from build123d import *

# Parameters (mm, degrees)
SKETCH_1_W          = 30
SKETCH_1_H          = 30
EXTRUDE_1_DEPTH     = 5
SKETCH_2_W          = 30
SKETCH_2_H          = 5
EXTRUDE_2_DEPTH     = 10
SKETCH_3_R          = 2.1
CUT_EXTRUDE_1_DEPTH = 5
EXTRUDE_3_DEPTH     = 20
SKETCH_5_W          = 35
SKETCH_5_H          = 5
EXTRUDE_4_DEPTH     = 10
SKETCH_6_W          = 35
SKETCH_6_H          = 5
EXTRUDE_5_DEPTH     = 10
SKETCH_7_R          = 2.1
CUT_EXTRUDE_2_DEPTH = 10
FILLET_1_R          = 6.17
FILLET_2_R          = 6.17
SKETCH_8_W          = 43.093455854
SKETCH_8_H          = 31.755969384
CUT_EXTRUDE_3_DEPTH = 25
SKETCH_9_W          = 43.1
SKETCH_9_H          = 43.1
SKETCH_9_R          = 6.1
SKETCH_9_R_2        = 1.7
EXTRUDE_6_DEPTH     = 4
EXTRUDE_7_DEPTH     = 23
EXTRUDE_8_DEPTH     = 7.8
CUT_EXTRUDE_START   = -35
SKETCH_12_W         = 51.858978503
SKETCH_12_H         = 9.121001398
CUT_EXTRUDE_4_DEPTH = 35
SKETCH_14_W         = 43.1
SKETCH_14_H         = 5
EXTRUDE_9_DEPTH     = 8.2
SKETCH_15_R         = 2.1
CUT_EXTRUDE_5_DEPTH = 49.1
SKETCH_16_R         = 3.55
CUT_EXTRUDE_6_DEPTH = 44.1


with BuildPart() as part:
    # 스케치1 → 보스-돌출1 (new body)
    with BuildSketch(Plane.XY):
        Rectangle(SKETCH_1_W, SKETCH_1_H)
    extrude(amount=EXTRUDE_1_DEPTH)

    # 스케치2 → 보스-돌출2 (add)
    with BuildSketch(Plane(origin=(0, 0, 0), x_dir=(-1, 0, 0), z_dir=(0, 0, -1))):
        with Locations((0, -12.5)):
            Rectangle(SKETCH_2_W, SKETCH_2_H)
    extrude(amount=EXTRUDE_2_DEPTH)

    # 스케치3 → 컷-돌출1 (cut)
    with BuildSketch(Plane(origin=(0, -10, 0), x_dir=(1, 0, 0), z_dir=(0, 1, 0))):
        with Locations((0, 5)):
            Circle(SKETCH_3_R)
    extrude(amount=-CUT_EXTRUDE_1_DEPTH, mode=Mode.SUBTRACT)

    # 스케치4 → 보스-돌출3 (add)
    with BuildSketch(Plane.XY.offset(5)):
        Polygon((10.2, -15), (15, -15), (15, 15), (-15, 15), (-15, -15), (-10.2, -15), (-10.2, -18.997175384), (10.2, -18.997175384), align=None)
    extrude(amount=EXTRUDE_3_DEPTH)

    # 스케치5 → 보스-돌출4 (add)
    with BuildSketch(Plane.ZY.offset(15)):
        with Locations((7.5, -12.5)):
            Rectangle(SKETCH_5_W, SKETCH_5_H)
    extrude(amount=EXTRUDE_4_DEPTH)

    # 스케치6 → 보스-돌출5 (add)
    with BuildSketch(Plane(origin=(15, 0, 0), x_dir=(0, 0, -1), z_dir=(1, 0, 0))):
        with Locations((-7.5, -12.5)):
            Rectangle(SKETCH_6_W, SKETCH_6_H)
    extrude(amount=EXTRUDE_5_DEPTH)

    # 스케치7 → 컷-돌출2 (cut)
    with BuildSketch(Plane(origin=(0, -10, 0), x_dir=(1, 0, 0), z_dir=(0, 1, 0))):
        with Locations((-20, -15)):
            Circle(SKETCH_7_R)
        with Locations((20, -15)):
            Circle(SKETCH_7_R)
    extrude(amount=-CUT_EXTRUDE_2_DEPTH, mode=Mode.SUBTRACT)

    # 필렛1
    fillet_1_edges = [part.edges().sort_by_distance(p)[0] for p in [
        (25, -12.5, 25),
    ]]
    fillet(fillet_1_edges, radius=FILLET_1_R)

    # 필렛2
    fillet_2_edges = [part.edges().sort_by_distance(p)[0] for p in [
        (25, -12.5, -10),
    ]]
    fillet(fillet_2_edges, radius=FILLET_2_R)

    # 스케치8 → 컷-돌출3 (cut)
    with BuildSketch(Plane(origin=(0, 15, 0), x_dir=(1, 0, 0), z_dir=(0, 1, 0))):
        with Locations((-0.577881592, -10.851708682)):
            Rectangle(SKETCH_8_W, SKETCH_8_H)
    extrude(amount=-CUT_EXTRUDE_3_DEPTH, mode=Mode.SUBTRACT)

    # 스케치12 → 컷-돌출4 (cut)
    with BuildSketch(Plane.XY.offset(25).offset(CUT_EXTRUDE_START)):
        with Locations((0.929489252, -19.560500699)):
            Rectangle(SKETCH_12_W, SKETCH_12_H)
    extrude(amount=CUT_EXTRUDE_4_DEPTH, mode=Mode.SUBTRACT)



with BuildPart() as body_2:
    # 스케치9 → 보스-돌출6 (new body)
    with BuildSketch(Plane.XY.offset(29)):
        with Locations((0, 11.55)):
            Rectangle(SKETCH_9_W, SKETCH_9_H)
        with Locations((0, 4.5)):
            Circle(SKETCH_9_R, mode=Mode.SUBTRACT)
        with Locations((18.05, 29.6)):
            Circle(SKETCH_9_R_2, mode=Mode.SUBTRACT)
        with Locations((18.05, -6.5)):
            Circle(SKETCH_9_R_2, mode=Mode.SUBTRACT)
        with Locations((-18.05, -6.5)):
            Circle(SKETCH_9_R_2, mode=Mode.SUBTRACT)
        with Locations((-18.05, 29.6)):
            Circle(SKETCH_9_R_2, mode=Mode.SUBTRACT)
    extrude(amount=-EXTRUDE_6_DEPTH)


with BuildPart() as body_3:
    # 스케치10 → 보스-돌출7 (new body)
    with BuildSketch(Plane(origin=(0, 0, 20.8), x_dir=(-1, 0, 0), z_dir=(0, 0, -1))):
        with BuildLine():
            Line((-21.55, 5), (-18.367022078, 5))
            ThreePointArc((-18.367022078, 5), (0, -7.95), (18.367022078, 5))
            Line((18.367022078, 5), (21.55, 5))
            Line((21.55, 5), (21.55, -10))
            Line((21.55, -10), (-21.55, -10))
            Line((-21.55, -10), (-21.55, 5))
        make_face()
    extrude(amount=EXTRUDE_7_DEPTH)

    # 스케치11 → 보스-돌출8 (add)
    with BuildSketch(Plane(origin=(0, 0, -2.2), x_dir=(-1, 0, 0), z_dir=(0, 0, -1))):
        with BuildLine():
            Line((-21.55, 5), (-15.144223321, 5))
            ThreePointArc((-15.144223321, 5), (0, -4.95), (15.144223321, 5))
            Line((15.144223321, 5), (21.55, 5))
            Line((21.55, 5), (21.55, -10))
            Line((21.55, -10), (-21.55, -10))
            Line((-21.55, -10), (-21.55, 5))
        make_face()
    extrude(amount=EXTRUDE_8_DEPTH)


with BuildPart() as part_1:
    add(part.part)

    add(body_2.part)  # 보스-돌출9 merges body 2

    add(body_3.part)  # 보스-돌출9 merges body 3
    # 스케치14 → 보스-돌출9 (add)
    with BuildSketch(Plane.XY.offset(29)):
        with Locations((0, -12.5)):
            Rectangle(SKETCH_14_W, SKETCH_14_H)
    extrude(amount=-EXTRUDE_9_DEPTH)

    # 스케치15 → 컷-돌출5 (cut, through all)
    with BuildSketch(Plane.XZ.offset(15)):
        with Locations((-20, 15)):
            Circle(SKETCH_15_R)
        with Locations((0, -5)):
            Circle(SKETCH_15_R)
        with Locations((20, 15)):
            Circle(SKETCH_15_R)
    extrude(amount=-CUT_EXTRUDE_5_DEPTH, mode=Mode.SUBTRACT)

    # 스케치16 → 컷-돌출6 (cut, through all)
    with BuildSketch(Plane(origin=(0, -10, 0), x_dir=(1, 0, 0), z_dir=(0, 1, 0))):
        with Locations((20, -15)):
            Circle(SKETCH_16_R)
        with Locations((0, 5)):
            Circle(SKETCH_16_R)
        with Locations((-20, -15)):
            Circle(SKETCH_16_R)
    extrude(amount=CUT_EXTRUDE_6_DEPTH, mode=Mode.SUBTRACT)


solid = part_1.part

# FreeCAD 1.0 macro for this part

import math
import FreeCAD as App
import Part
import Sketcher


def edges_at(feature, points):
    """Names of the edges that pass closest to the given points."""
    edges = feature.Shape.Edges
    near = lambda p: min(range(len(edges)), key=lambda i: edges[i].distToShape(Part.Vertex(*p))[0])
    return sorted({f"Edge{near(p) + 1}" for p in points})


def add_polygon(sketch, points):
    """Adds a closed chain of lines whose ends are joined by coincident constraints."""
    first, n = sketch.GeometryCount, len(points)
    for a, b in zip(points, points[1:] + points[:1]):
        sketch.addGeometry(Part.LineSegment(App.Vector(*a, 0), App.Vector(*b, 0)), False)
    for i in range(n):
        sketch.addConstraint(Sketcher.Constraint("Coincident", first + i, 2, first + (i + 1) % n, 1))

doc = App.newDocument("Part")
body = doc.addObject("PartDesign::Body", "Body")

# Sketch on XY plane
sketch1 = body.newObject("Sketcher::SketchObject", "Sketch")
sketch1.AttachmentSupport = (doc.getObject("XY_Plane"), [""])
sketch1.MapMode = "FlatFace"
add_polygon(sketch1, [(-15, 15), (-15, -15), (15, -15), (15, 15)])  # lines 0-3
sketch1.addConstraint(Sketcher.Constraint("Vertical", 0))
sketch1.addConstraint(Sketcher.Constraint("Horizontal", 1))
sketch1.addConstraint(Sketcher.Constraint("Vertical", 2))
sketch1.addConstraint(Sketcher.Constraint("Horizontal", 3))
sketch1.addConstraint(Sketcher.Constraint("Symmetric", 0, 2, 2, 2, -1, 1))
sketch1.addConstraint(Sketcher.Constraint("Equal", 3, 0))
sketch1.addConstraint(Sketcher.Constraint("DistanceX", 1, 1, 1, 2, 30.0))
pad1 = body.newObject("PartDesign::Pad", "Pad")
pad1.Profile = sketch1
pad1.Length = 5

# Sketch on XY plane
sketch2 = body.newObject("Sketcher::SketchObject", "Sketch001")
sketch2.AttachmentSupport = (doc.getObject("XY_Plane"), [""])
sketch2.MapMode = "FlatFace"
add_polygon(sketch2, [(15, -10), (15, -15), (-15, -15), (-15, -10)])  # lines 0-3
sketch2.addConstraint(Sketcher.Constraint("Vertical", 0))
sketch2.addConstraint(Sketcher.Constraint("Horizontal", 1))
sketch2.addConstraint(Sketcher.Constraint("Vertical", 2))
sketch2.addConstraint(Sketcher.Constraint("Horizontal", 3))
sketch2.addConstraint(Sketcher.Constraint("DistanceX", 1, 2, 1, 1, 30.0))
sketch2.addConstraint(Sketcher.Constraint("DistanceY", 0, 2, 0, 1, 5.0))
sketch2.addConstraint(Sketcher.Constraint("DistanceX", -1, 1, 0, 2, 15.0))
sketch2.addConstraint(Sketcher.Constraint("DistanceY", 0, 2, -1, 1, 15.0))
pad2 = body.newObject("PartDesign::Pad", "Pad001")
pad2.Profile = sketch2
pad2.Length = 10
pad2.Reversed = True

# Sketch on XZ plane
sketch3 = body.newObject("Sketcher::SketchObject", "Sketch002")
sketch3.AttachmentSupport = (doc.getObject("XZ_Plane"), [""])
sketch3.MapMode = "FlatFace"
sketch3.AttachmentOffset = App.Placement(App.Vector(0, 0, 10), App.Rotation())
sketch3.addGeometry(Part.Circle(App.Vector(0, -5, 0), App.Vector(0, 0, 1), 2.1), False)
sketch3.addConstraint(Sketcher.Constraint("PointOnObject", 0, 3, -2))
sketch3.addConstraint(Sketcher.Constraint("Diameter", 0, 4.2))
sketch3.addConstraint(Sketcher.Constraint("DistanceY", 0, 3, -1, 1, 5.0))
pocket1 = body.newObject("PartDesign::Pocket", "Pocket")
pocket1.Profile = sketch3
pocket1.Length = 5
pocket1.Reversed = True

# Sketch on XY plane
sketch4 = body.newObject("Sketcher::SketchObject", "Sketch003")
sketch4.AttachmentSupport = (doc.getObject("XY_Plane"), [""])
sketch4.MapMode = "FlatFace"
sketch4.AttachmentOffset = App.Placement(App.Vector(0, 0, 5), App.Rotation())
add_polygon(sketch4, [(10.2, -15), (15, -15), (15, 15), (-15, 15), (-15, -15), (-10.2, -15), (-10.2, -19), (10.2, -19)])  # lines 0-7
sketch4.addConstraint(Sketcher.Constraint("Horizontal", 0))
sketch4.addConstraint(Sketcher.Constraint("Vertical", 1))
sketch4.addConstraint(Sketcher.Constraint("Horizontal", 2))
sketch4.addConstraint(Sketcher.Constraint("Vertical", 3))
sketch4.addConstraint(Sketcher.Constraint("Horizontal", 4))
sketch4.addConstraint(Sketcher.Constraint("Vertical", 5))
sketch4.addConstraint(Sketcher.Constraint("Horizontal", 6))
sketch4.addConstraint(Sketcher.Constraint("Vertical", 7))
sketch4.addConstraint(Sketcher.Constraint("Symmetric", 0, 2, 2, 2, -1, 1))
sketch4.addConstraint(Sketcher.Constraint("Symmetric", 4, 2, 7, 2, -2))
sketch4.addConstraint(Sketcher.Constraint("Equal", 2, 1))
sketch4.addConstraint(Sketcher.Constraint("DistanceX", 2, 2, 2, 1, 30.0))
sketch4.addConstraint(Sketcher.Constraint("DistanceX", 0, 1, 0, 2, 4.8))
sketch4.addConstraint(Sketcher.Constraint("DistanceY", 5, 2, 5, 1, 3.997175))
pad3 = body.newObject("PartDesign::Pad", "Pad002")
pad3.Profile = sketch4
pad3.Length = 20

# Sketch on YZ plane
sketch5 = body.newObject("Sketcher::SketchObject", "Sketch004")
sketch5.AttachmentSupport = (doc.getObject("YZ_Plane"), [""])
sketch5.MapMode = "FlatFace"
sketch5.AttachmentOffset = App.Placement(App.Vector(0, 0, -15), App.Rotation())
add_polygon(sketch5, [(-10, -10), (-15, -10), (-15, 25), (-10, 25)])  # lines 0-3
sketch5.addConstraint(Sketcher.Constraint("Horizontal", 0))
sketch5.addConstraint(Sketcher.Constraint("Vertical", 1))
sketch5.addConstraint(Sketcher.Constraint("Horizontal", 2))
sketch5.addConstraint(Sketcher.Constraint("Vertical", 3))
sketch5.addConstraint(Sketcher.Constraint("DistanceX", 0, 2, 0, 1, 5.0))
sketch5.addConstraint(Sketcher.Constraint("DistanceY", 1, 1, 1, 2, 35.0))
sketch5.addConstraint(Sketcher.Constraint("DistanceX", 0, 2, -1, 1, 15.0))
sketch5.addConstraint(Sketcher.Constraint("DistanceY", 0, 2, -1, 1, 10.0))
pad4 = body.newObject("PartDesign::Pad", "Pad003")
pad4.Profile = sketch5
pad4.Length = 10
pad4.Reversed = True

# Sketch on YZ plane
sketch6 = body.newObject("Sketcher::SketchObject", "Sketch005")
sketch6.AttachmentSupport = (doc.getObject("YZ_Plane"), [""])
sketch6.MapMode = "FlatFace"
sketch6.AttachmentOffset = App.Placement(App.Vector(0, 0, 15), App.Rotation())
add_polygon(sketch6, [(-10, 25), (-15, 25), (-15, -10), (-10, -10)])  # lines 0-3
sketch6.addConstraint(Sketcher.Constraint("Horizontal", 0))
sketch6.addConstraint(Sketcher.Constraint("Vertical", 1))
sketch6.addConstraint(Sketcher.Constraint("Horizontal", 2))
sketch6.addConstraint(Sketcher.Constraint("Vertical", 3))
sketch6.addConstraint(Sketcher.Constraint("DistanceX", 0, 2, 0, 1, 5.0))
sketch6.addConstraint(Sketcher.Constraint("DistanceY", 1, 2, 1, 1, 35.0))
sketch6.addConstraint(Sketcher.Constraint("DistanceX", 0, 2, -1, 1, 15.0))
sketch6.addConstraint(Sketcher.Constraint("DistanceY", -1, 1, 0, 2, 25.0))
pad5 = body.newObject("PartDesign::Pad", "Pad004")
pad5.Profile = sketch6
pad5.Length = 10

# Sketch on XZ plane
sketch7 = body.newObject("Sketcher::SketchObject", "Sketch006")
sketch7.AttachmentSupport = (doc.getObject("XZ_Plane"), [""])
sketch7.MapMode = "FlatFace"
sketch7.AttachmentOffset = App.Placement(App.Vector(0, 0, 10), App.Rotation())
sketch7.addGeometry(Part.Circle(App.Vector(-20, 15, 0), App.Vector(0, 0, 1), 2.1), False)
sketch7.addGeometry(Part.Circle(App.Vector(20, 15, 0), App.Vector(0, 0, 1), 2.1), False)
sketch7.addConstraint(Sketcher.Constraint("Equal", 0, 1))
sketch7.addConstraint(Sketcher.Constraint("Symmetric", 0, 3, 1, 3, -2))
sketch7.addConstraint(Sketcher.Constraint("Diameter", 0, 4.2))
sketch7.addConstraint(Sketcher.Constraint("DistanceX", 0, 3, -1, 1, 20.0))
sketch7.addConstraint(Sketcher.Constraint("DistanceY", -1, 1, 0, 3, 15.0))
pocket2 = body.newObject("PartDesign::Pocket", "Pocket001")
pocket2.Profile = sketch7
pocket2.Length = 10
pocket2.Reversed = True
doc.recompute()

fillet = body.newObject("PartDesign::Fillet", "Fillet")
fillet.Base = (pocket2, edges_at(pocket2, [(25, -12.5, 25)]))
fillet.Radius = 6.17
doc.recompute()

fillet2 = body.newObject("PartDesign::Fillet", "Fillet001")
fillet2.Base = (fillet, edges_at(fillet, [(25, -12.5, -10)]))
fillet2.Radius = 6.17

# Sketch on XZ plane
sketch8 = body.newObject("Sketcher::SketchObject", "Sketch007")
sketch8.AttachmentSupport = (doc.getObject("XZ_Plane"), [""])
sketch8.MapMode = "FlatFace"
sketch8.AttachmentOffset = App.Placement(App.Vector(0, 0, -15), App.Rotation())
add_polygon(sketch8, [(-22, -5), (-22, 27), (21, 27), (21, -5)])  # lines 0-3
sketch8.addConstraint(Sketcher.Constraint("Vertical", 0))
sketch8.addConstraint(Sketcher.Constraint("Horizontal", 1))
sketch8.addConstraint(Sketcher.Constraint("Vertical", 2))
sketch8.addConstraint(Sketcher.Constraint("Horizontal", 3))
sketch8.addConstraint(Sketcher.Constraint("DistanceY", 0, 1, 0, 2, 31.755969))
sketch8.addConstraint(Sketcher.Constraint("DistanceX", 1, 1, 1, 2, 43.093456))
sketch8.addConstraint(Sketcher.Constraint("DistanceX", 0, 2, -1, 1, 22.12461))
sketch8.addConstraint(Sketcher.Constraint("DistanceY", -1, 1, 0, 2, 26.729693))
pocket3 = body.newObject("PartDesign::Pocket", "Pocket002")
pocket3.Profile = sketch8
pocket3.Length = 25
pocket3.Reversed = True

# Sketch on XY plane
sketch9 = body.newObject("Sketcher::SketchObject", "Sketch008")
sketch9.AttachmentSupport = (doc.getObject("XY_Plane"), [""])
sketch9.MapMode = "FlatFace"
sketch9.AttachmentOffset = App.Placement(App.Vector(0, 0, -10), App.Rotation())
add_polygon(sketch9, [(-25, -15), (-25, -24), (27, -24), (27, -15)])  # lines 0-3
sketch9.addConstraint(Sketcher.Constraint("Vertical", 0))
sketch9.addConstraint(Sketcher.Constraint("Horizontal", 1))
sketch9.addConstraint(Sketcher.Constraint("Vertical", 2))
sketch9.addConstraint(Sketcher.Constraint("Horizontal", 3))
sketch9.addConstraint(Sketcher.Constraint("DistanceX", 0, 2, -1, 1, 25.0))
sketch9.addConstraint(Sketcher.Constraint("DistanceY", 2, 2, -1, 1, 15.0))
sketch9.addConstraint(Sketcher.Constraint("DistanceY", 0, 2, 0, 1, 9.121001))
sketch9.addConstraint(Sketcher.Constraint("DistanceX", 1, 1, 1, 2, 51.858979))
pocket4 = body.newObject("PartDesign::Pocket", "Pocket003")
pocket4.Profile = sketch9
pocket4.Length = 35
pocket4.Reversed = True
body2 = doc.addObject("PartDesign::Body", "Body001")

# Sketch on XY plane
sketch10 = body2.newObject("Sketcher::SketchObject", "Sketch009")
sketch10.AttachmentSupport = (doc.getObject("XY_Plane001"), [""])
sketch10.MapMode = "FlatFace"
sketch10.AttachmentOffset = App.Placement(App.Vector(0, 0, 29), App.Rotation())
add_polygon(sketch10, [(-21.6, 33.1), (-21.6, -10), (21.6, -10), (21.6, 33.1)])  # lines 0-3
sketch10.addGeometry(Part.Circle(App.Vector(-18.1, -6.5, 0), App.Vector(0, 0, 1), 1.7), False)  # 4
sketch10.addGeometry(Part.Circle(App.Vector(18.1, -6.5, 0), App.Vector(0, 0, 1), 1.7), False)  # 5
sketch10.addGeometry(Part.Circle(App.Vector(0, 4.5, 0), App.Vector(0, 0, 1), 6.1), False)  # 6
sketch10.addGeometry(Part.Circle(App.Vector(-18.1, 29.6, 0), App.Vector(0, 0, 1), 1.7), False)  # 7
sketch10.addGeometry(Part.Circle(App.Vector(18.1, 29.6, 0), App.Vector(0, 0, 1), 1.7), False)  # 8
sketch10.addConstraint(Sketcher.Constraint("Vertical", 0))
sketch10.addConstraint(Sketcher.Constraint("Horizontal", 1))
sketch10.addConstraint(Sketcher.Constraint("Vertical", 2))
sketch10.addConstraint(Sketcher.Constraint("Horizontal", 3))
sketch10.addConstraint(Sketcher.Constraint("Equal", 4, 5))
sketch10.addConstraint(Sketcher.Constraint("Equal", 5, 7))
sketch10.addConstraint(Sketcher.Constraint("Equal", 7, 8))
sketch10.addConstraint(Sketcher.Constraint("Symmetric", 4, 3, 5, 3, -2))
sketch10.addConstraint(Sketcher.Constraint("Symmetric", 7, 3, 8, 3, -2))
sketch10.addConstraint(Sketcher.Constraint("PointOnObject", 6, 3, -2))
sketch10.addConstraint(Sketcher.Constraint("Vertical", 4, 3, 7, 3))
sketch10.addConstraint(Sketcher.Constraint("Equal", 3, 0))
sketch10.addConstraint(Sketcher.Constraint("Diameter", 4, 3.4))
sketch10.addConstraint(Sketcher.Constraint("Diameter", 6, 12.2))
sketch10.addConstraint(Sketcher.Constraint("DistanceX", 1, 1, 1, 2, 43.1))
sketch10.addConstraint(Sketcher.Constraint("DistanceY", 0, 2, -1, 1, 10.0))
sketch10.addConstraint(Sketcher.Constraint("DistanceY", 4, 3, 6, 3, 11.0))
sketch10.addConstraint(Sketcher.Constraint("DistanceY", 4, 3, -1, 1, 6.5))
sketch10.addConstraint(Sketcher.Constraint("DistanceY", -1, 1, 7, 3, 29.6))
sketch10.addConstraint(Sketcher.Constraint("DistanceX", 4, 3, 5, 3, 36.1))
sketch10.addConstraint(Sketcher.Constraint("DistanceX", 0, 2, 4, 3, 3.5))
pad6 = body2.newObject("PartDesign::Pad", "Pad005")
pad6.Profile = sketch10
pad6.Length = 4
pad6.Reversed = True
body3 = doc.addObject("PartDesign::Body", "Body002")

# Sketch on XY plane
sketch11 = body3.newObject("Sketcher::SketchObject", "Sketch010")
sketch11.AttachmentSupport = (doc.getObject("XY_Plane002"), [""])
sketch11.MapMode = "FlatFace"
sketch11.AttachmentOffset = App.Placement(App.Vector(0, 0, 20.8), App.Rotation())
sketch11.addGeometry(Part.LineSegment(App.Vector(18.4, 5, 0), App.Vector(21.6, 5, 0)), False)
sketch11.addGeometry(Part.LineSegment(App.Vector(21.6, 5, 0), App.Vector(21.6, -10, 0)), False)
sketch11.addGeometry(Part.LineSegment(App.Vector(21.6, -10, 0), App.Vector(-21.6, -10, 0)), False)
sketch11.addGeometry(Part.LineSegment(App.Vector(-21.6, -10, 0), App.Vector(-21.6, 5, 0)), False)
sketch11.addGeometry(Part.LineSegment(App.Vector(-21.6, 5, 0), App.Vector(-18.4, 5, 0)), False)
sketch11.addGeometry(Part.ArcOfCircle(Part.Circle(App.Vector(0, 11.6, 0), App.Vector(0, 0, 1), 19.5), math.radians(-160), math.radians(-20)), False)
sketch11.addConstraint(Sketcher.Constraint("Coincident", 0, 2, 1, 1))
sketch11.addConstraint(Sketcher.Constraint("Coincident", 1, 2, 2, 1))
sketch11.addConstraint(Sketcher.Constraint("Coincident", 2, 2, 3, 1))
sketch11.addConstraint(Sketcher.Constraint("Coincident", 3, 2, 4, 1))
sketch11.addConstraint(Sketcher.Constraint("Coincident", 4, 2, 5, 1))
sketch11.addConstraint(Sketcher.Constraint("Coincident", 5, 2, 0, 1))
sketch11.addConstraint(Sketcher.Constraint("Horizontal", 0))
sketch11.addConstraint(Sketcher.Constraint("Vertical", 1))
sketch11.addConstraint(Sketcher.Constraint("Horizontal", 2))
sketch11.addConstraint(Sketcher.Constraint("Vertical", 3))
sketch11.addConstraint(Sketcher.Constraint("Horizontal", 4))
sketch11.addConstraint(Sketcher.Constraint("Symmetric", 0, 2, 3, 2, -2))
sketch11.addConstraint(Sketcher.Constraint("PointOnObject", 5, 3, -2))
sketch11.addConstraint(Sketcher.Constraint("Radius", 5, 19.5))
sketch11.addConstraint(Sketcher.Constraint("DistanceY", 1, 2, 1, 1, 15.0))
sketch11.addConstraint(Sketcher.Constraint("DistanceX", 2, 2, 2, 1, 43.1))
sketch11.addConstraint(Sketcher.Constraint("DistanceY", -1, 1, 0, 2, 5.0))
sketch11.addConstraint(Sketcher.Constraint("DistanceY", -1, 1, 5, 3, 11.55))
pad7 = body3.newObject("PartDesign::Pad", "Pad006")
pad7.Profile = sketch11
pad7.Length = 23
pad7.Reversed = True

# Sketch on XY plane
sketch12 = body3.newObject("Sketcher::SketchObject", "Sketch011")
sketch12.AttachmentSupport = (doc.getObject("XY_Plane002"), [""])
sketch12.MapMode = "FlatFace"
sketch12.AttachmentOffset = App.Placement(App.Vector(0, 0, -2.2), App.Rotation())
sketch12.addGeometry(Part.LineSegment(App.Vector(15, 5, 0), App.Vector(22, 5, 0)), False)
sketch12.addGeometry(Part.LineSegment(App.Vector(22, 5, 0), App.Vector(22, -10, 0)), False)
sketch12.addGeometry(Part.LineSegment(App.Vector(22, -10, 0), App.Vector(-22, -10, 0)), False)
sketch12.addGeometry(Part.LineSegment(App.Vector(-22, -10, 0), App.Vector(-22, 5, 0)), False)
sketch12.addGeometry(Part.LineSegment(App.Vector(-22, 5, 0), App.Vector(-15, 5, 0)), False)
sketch12.addGeometry(Part.ArcOfCircle(Part.Circle(App.Vector(0, 12, 0), App.Vector(0, 0, 1), 16), math.radians(-157), math.radians(-23)), False)
sketch12.addConstraint(Sketcher.Constraint("Coincident", 0, 2, 1, 1))
sketch12.addConstraint(Sketcher.Constraint("Coincident", 1, 2, 2, 1))
sketch12.addConstraint(Sketcher.Constraint("Coincident", 2, 2, 3, 1))
sketch12.addConstraint(Sketcher.Constraint("Coincident", 3, 2, 4, 1))
sketch12.addConstraint(Sketcher.Constraint("Coincident", 4, 2, 5, 1))
sketch12.addConstraint(Sketcher.Constraint("Coincident", 5, 2, 0, 1))
sketch12.addConstraint(Sketcher.Constraint("Horizontal", 0))
sketch12.addConstraint(Sketcher.Constraint("Vertical", 1))
sketch12.addConstraint(Sketcher.Constraint("Horizontal", 2))
sketch12.addConstraint(Sketcher.Constraint("Vertical", 3))
sketch12.addConstraint(Sketcher.Constraint("Horizontal", 4))
sketch12.addConstraint(Sketcher.Constraint("Symmetric", 0, 2, 3, 2, -2))
sketch12.addConstraint(Sketcher.Constraint("PointOnObject", 5, 3, -2))
sketch12.addConstraint(Sketcher.Constraint("Radius", 5, 16.5))
sketch12.addConstraint(Sketcher.Constraint("DistanceY", 1, 2, 1, 1, 15.0))
sketch12.addConstraint(Sketcher.Constraint("DistanceX", 2, 2, 2, 1, 43.1))
sketch12.addConstraint(Sketcher.Constraint("DistanceY", -1, 1, 0, 2, 5.0))
sketch12.addConstraint(Sketcher.Constraint("DistanceY", -1, 1, 5, 3, 11.55))
pad8 = body3.newObject("PartDesign::Pad", "Pad007")
pad8.Profile = sketch12
pad8.Length = 7.8
pad8.Reversed = True
body.AllowCompound = True
doc.recompute()

boolean = body.newObject("PartDesign::Boolean", "Boolean")
boolean.Type = "Fuse"
boolean.addObjects([body2])
doc.recompute()

boolean2 = body.newObject("PartDesign::Boolean", "Boolean001")
boolean2.Type = "Fuse"
boolean2.addObjects([body3])

# Sketch on XY plane
sketch13 = body.newObject("Sketcher::SketchObject", "Sketch012")
sketch13.AttachmentSupport = (doc.getObject("XY_Plane"), [""])
sketch13.MapMode = "FlatFace"
sketch13.AttachmentOffset = App.Placement(App.Vector(0, 0, 29), App.Rotation())
add_polygon(sketch13, [(-22, -10), (-22, -15), (22, -15), (22, -10)])  # lines 0-3
sketch13.addConstraint(Sketcher.Constraint("Vertical", 0))
sketch13.addConstraint(Sketcher.Constraint("Horizontal", 1))
sketch13.addConstraint(Sketcher.Constraint("Vertical", 2))
sketch13.addConstraint(Sketcher.Constraint("Horizontal", 3))
sketch13.addConstraint(Sketcher.Constraint("DistanceY", 0, 2, 0, 1, 5.0))
sketch13.addConstraint(Sketcher.Constraint("DistanceX", 1, 1, 1, 2, 43.1))
sketch13.addConstraint(Sketcher.Constraint("DistanceY", 0, 2, -1, 1, 15.0))
sketch13.addConstraint(Sketcher.Constraint("DistanceX", 0, 2, -1, 1, 21.55))
pad9 = body.newObject("PartDesign::Pad", "Pad008")
pad9.Profile = sketch13
pad9.Length = 8.2
pad9.Reversed = True

# Sketch on XZ plane
sketch14 = body.newObject("Sketcher::SketchObject", "Sketch013")
sketch14.AttachmentSupport = (doc.getObject("XZ_Plane"), [""])
sketch14.MapMode = "FlatFace"
sketch14.AttachmentOffset = App.Placement(App.Vector(0, 0, 15), App.Rotation())
sketch14.addGeometry(Part.Circle(App.Vector(-20, 15, 0), App.Vector(0, 0, 1), 2.1), False)
sketch14.addGeometry(Part.Circle(App.Vector(0, -5, 0), App.Vector(0, 0, 1), 2.1), False)
sketch14.addGeometry(Part.Circle(App.Vector(20, 15, 0), App.Vector(0, 0, 1), 2.1), False)
sketch14.addConstraint(Sketcher.Constraint("Equal", 0, 1))
sketch14.addConstraint(Sketcher.Constraint("Equal", 1, 2))
sketch14.addConstraint(Sketcher.Constraint("Symmetric", 0, 3, 2, 3, -2))
sketch14.addConstraint(Sketcher.Constraint("PointOnObject", 1, 3, -2))
sketch14.addConstraint(Sketcher.Constraint("Diameter", 0, 4.2))
sketch14.addConstraint(Sketcher.Constraint("DistanceX", 0, 3, -1, 1, 20.0))
sketch14.addConstraint(Sketcher.Constraint("DistanceY", -1, 1, 0, 3, 15.0))
sketch14.addConstraint(Sketcher.Constraint("DistanceY", 1, 3, -1, 1, 5.0))
pocket5 = body.newObject("PartDesign::Pocket", "Pocket004")
pocket5.Profile = sketch14
pocket5.Type = "ThroughAll"

# Sketch on XZ plane
sketch15 = body.newObject("Sketcher::SketchObject", "Sketch014")
sketch15.AttachmentSupport = (doc.getObject("XZ_Plane"), [""])
sketch15.MapMode = "FlatFace"
sketch15.AttachmentOffset = App.Placement(App.Vector(0, 0, 10), App.Rotation())
sketch15.addGeometry(Part.Circle(App.Vector(20, 15, 0), App.Vector(0, 0, 1), 3.5), False)
sketch15.addGeometry(Part.Circle(App.Vector(0, -5, 0), App.Vector(0, 0, 1), 3.5), False)
sketch15.addGeometry(Part.Circle(App.Vector(-20, 15, 0), App.Vector(0, 0, 1), 3.5), False)
sketch15.addConstraint(Sketcher.Constraint("Equal", 0, 1))
sketch15.addConstraint(Sketcher.Constraint("Equal", 1, 2))
sketch15.addConstraint(Sketcher.Constraint("Symmetric", 0, 3, 2, 3, -2))
sketch15.addConstraint(Sketcher.Constraint("PointOnObject", 1, 3, -2))
sketch15.addConstraint(Sketcher.Constraint("Diameter", 0, 7.1))
sketch15.addConstraint(Sketcher.Constraint("DistanceX", -1, 1, 0, 3, 20.0))
sketch15.addConstraint(Sketcher.Constraint("DistanceY", -1, 1, 0, 3, 15.0))
sketch15.addConstraint(Sketcher.Constraint("DistanceY", 1, 3, -1, 1, 5.0))
pocket6 = body.newObject("PartDesign::Pocket", "Pocket005")
pocket6.Profile = sketch15
pocket6.Type = "ThroughAll"

doc.recompute()
